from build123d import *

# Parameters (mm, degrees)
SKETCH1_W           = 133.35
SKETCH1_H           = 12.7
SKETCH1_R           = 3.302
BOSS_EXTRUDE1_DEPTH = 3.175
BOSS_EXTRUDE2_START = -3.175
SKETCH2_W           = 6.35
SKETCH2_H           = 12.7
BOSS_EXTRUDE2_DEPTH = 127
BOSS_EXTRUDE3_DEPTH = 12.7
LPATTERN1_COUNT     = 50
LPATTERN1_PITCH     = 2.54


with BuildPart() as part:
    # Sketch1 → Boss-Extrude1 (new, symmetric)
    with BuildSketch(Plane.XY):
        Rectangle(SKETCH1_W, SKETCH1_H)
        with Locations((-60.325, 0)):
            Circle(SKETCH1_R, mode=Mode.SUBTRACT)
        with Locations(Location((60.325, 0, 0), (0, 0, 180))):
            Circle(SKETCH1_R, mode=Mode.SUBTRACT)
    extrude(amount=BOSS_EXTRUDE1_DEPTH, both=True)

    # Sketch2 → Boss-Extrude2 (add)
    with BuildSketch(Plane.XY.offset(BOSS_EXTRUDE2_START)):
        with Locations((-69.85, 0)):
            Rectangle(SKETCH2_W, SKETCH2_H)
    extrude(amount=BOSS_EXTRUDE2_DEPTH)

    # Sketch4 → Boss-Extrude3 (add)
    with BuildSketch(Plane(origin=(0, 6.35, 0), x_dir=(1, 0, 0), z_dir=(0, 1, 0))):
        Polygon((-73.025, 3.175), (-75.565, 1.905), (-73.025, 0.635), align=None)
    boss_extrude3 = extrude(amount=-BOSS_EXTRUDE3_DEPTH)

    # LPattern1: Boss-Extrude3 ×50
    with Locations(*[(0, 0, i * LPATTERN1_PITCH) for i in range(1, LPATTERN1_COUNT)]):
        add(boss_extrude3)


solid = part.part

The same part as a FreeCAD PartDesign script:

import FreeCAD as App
import Part
import Sketcher
Q = App.Units.Quantity


def add_polygon(sketch, points):
    """Adds a closed chain of lines whose ends are joined by coincident constraints."""
    first, n = sketch.GeometryCount, len(points)
    for a, b in zip(points, points[1:] + points[:1]):
        sketch.addGeometry(Part.LineSegment(App.Vector(*a, 0), App.Vector(*b, 0)), False)
    for i in range(n):
        sketch.addConstraint(Sketcher.Constraint("Coincident", first + i, 2, first + (i + 1) % n, 1))

doc = App.newDocument("Part")
body = doc.addObject("PartDesign::Body", "Body")

# Sketch on XY plane
sketch1 = body.newObject("Sketcher::SketchObject", "Sketch")
sketch1.AttachmentSupport = (doc.getObject("XY_Plane"), [""])
sketch1.MapMode = "FlatFace"
add_polygon(sketch1, [(-66.7, 6.3), (-66.7, -6.3), (66.7, -6.3), (66.7, 6.3)])  # lines 0-3
sketch1.addGeometry(Part.Circle(App.Vector(-60.3, 0, 0), App.Vector(0, 0, 1), 3.3), False)  # 4
sketch1.addGeometry(Part.Circle(App.Vector(60.3, 0, 0), App.Vector(0, 0, 1), 3.3), False)  # 5
sketch1.addConstraint([
    Sketcher.Constraint("Vertical", 0),
    Sketcher.Constraint("Horizontal", 1),
    Sketcher.Constraint("Vertical", 2),
    Sketcher.Constraint("Horizontal", 3),
    Sketcher.Constraint("Equal", 4, 5),
    Sketcher.Constraint("Symmetric", 4, 3, 5, 3, -1, 1),
    Sketcher.Constraint("Symmetric", 0, 2, 2, 2, -1, 1),
    Sketcher.Constraint("PointOnObject", 4, 3, -1),
    Sketcher.Constraint("Diameter", 4, Q("0.26 in")),
    Sketcher.Constraint("DistanceY", 0, 2, 0, 1, Q("0.5 in")),
    Sketcher.Constraint("DistanceX", 0, 2, 5, 3, Q("5 in")),
    Sketcher.Constraint("DistanceX", 1, 1, 1, 2, Q("5.25 in")),
])
pad1 = body.newObject("PartDesign::Pad", "Pad")
pad1.Profile = sketch1
pad1.Length = Q("0.25 in")
pad1.Midplane = True

# Sketch on XY plane
sketch2 = body.newObject("Sketcher::SketchObject", "Sketch001")
sketch2.AttachmentSupport = (doc.getObject("XY_Plane"), [""])
sketch2.MapMode = "FlatFace"
sketch2.AttachmentOffset = App.Placement(App.Vector(0, 0, -0.125 * 25.4), App.Rotation())
add_polygon(sketch2, [(-73, 6), (-73, -6), (-67, -6), (-67, 6)])  # lines 0-3
sketch2.addConstraint([
    Sketcher.Constraint("Vertical", 0),
    Sketcher.Constraint("Horizontal", 1),
    Sketcher.Constraint("Vertical", 2),
    Sketcher.Constraint("Horizontal", 3),
    Sketcher.Constraint("DistanceY", 0, 2, 0, 1, Q("0.5 in")),
    Sketcher.Constraint("DistanceX", 1, 1, 1, 2, Q("0.25 in")),
    Sketcher.Constraint("DistanceY", 0, 2, -1, 1, Q("0.25 in")),
    Sketcher.Constraint("DistanceX", 0, 2, -1, 1, Q("2.875 in")),
])
pad2 = body.newObject("PartDesign::Pad", "Pad001")
pad2.Profile = sketch2
pad2.Length = Q("5 in")

# Sketch on XZ plane
sketch3 = body.newObject("Sketcher::SketchObject", "Sketch002")
sketch3.AttachmentSupport = (doc.getObject("XZ_Plane"), [""])
sketch3.MapMode = "FlatFace"
sketch3.AttachmentOffset = App.Placement(App.Vector(0, 0, -0.25 * 25.4), App.Rotation())
add_polygon(sketch3, [(-73, -3.2), (-75.6, -1.9), (-73, -0.6)])  # lines 0-2
sketch3.addConstraint([
    Sketcher.Constraint("Vertical", 2),
    Sketcher.Constraint("Equal", 0, 1),
    Sketcher.Constraint("DistanceY", 2, 2, 2, 1, Q("0.1 in")),
    Sketcher.Constraint("DistanceX", 0, 2, 1, 2, Q("0.1 in")),
    Sketcher.Constraint("DistanceX", 0, 2, -1, 1, Q("2.975 in")),
    Sketcher.Constraint("DistanceY", 0, 2, -1, 1, Q("0.075 in")),
])
pad3 = body.newObject("PartDesign::Pad", "Pad002")
pad3.Profile = sketch3
pad3.Length = Q("0.5 in")
doc.recompute()

linearpattern = body.newObject("PartDesign::LinearPattern", "LinearPattern")
linearpattern.Originals = [pad3]
linearpattern.Direction = (doc.getObject("Z_Axis"), [""])
linearpattern.Mode = "offset"
linearpattern.Offset = Q("0.1 in")
linearpattern.Occurrences = 50
body.Tip = linearpattern

doc.recompute()
